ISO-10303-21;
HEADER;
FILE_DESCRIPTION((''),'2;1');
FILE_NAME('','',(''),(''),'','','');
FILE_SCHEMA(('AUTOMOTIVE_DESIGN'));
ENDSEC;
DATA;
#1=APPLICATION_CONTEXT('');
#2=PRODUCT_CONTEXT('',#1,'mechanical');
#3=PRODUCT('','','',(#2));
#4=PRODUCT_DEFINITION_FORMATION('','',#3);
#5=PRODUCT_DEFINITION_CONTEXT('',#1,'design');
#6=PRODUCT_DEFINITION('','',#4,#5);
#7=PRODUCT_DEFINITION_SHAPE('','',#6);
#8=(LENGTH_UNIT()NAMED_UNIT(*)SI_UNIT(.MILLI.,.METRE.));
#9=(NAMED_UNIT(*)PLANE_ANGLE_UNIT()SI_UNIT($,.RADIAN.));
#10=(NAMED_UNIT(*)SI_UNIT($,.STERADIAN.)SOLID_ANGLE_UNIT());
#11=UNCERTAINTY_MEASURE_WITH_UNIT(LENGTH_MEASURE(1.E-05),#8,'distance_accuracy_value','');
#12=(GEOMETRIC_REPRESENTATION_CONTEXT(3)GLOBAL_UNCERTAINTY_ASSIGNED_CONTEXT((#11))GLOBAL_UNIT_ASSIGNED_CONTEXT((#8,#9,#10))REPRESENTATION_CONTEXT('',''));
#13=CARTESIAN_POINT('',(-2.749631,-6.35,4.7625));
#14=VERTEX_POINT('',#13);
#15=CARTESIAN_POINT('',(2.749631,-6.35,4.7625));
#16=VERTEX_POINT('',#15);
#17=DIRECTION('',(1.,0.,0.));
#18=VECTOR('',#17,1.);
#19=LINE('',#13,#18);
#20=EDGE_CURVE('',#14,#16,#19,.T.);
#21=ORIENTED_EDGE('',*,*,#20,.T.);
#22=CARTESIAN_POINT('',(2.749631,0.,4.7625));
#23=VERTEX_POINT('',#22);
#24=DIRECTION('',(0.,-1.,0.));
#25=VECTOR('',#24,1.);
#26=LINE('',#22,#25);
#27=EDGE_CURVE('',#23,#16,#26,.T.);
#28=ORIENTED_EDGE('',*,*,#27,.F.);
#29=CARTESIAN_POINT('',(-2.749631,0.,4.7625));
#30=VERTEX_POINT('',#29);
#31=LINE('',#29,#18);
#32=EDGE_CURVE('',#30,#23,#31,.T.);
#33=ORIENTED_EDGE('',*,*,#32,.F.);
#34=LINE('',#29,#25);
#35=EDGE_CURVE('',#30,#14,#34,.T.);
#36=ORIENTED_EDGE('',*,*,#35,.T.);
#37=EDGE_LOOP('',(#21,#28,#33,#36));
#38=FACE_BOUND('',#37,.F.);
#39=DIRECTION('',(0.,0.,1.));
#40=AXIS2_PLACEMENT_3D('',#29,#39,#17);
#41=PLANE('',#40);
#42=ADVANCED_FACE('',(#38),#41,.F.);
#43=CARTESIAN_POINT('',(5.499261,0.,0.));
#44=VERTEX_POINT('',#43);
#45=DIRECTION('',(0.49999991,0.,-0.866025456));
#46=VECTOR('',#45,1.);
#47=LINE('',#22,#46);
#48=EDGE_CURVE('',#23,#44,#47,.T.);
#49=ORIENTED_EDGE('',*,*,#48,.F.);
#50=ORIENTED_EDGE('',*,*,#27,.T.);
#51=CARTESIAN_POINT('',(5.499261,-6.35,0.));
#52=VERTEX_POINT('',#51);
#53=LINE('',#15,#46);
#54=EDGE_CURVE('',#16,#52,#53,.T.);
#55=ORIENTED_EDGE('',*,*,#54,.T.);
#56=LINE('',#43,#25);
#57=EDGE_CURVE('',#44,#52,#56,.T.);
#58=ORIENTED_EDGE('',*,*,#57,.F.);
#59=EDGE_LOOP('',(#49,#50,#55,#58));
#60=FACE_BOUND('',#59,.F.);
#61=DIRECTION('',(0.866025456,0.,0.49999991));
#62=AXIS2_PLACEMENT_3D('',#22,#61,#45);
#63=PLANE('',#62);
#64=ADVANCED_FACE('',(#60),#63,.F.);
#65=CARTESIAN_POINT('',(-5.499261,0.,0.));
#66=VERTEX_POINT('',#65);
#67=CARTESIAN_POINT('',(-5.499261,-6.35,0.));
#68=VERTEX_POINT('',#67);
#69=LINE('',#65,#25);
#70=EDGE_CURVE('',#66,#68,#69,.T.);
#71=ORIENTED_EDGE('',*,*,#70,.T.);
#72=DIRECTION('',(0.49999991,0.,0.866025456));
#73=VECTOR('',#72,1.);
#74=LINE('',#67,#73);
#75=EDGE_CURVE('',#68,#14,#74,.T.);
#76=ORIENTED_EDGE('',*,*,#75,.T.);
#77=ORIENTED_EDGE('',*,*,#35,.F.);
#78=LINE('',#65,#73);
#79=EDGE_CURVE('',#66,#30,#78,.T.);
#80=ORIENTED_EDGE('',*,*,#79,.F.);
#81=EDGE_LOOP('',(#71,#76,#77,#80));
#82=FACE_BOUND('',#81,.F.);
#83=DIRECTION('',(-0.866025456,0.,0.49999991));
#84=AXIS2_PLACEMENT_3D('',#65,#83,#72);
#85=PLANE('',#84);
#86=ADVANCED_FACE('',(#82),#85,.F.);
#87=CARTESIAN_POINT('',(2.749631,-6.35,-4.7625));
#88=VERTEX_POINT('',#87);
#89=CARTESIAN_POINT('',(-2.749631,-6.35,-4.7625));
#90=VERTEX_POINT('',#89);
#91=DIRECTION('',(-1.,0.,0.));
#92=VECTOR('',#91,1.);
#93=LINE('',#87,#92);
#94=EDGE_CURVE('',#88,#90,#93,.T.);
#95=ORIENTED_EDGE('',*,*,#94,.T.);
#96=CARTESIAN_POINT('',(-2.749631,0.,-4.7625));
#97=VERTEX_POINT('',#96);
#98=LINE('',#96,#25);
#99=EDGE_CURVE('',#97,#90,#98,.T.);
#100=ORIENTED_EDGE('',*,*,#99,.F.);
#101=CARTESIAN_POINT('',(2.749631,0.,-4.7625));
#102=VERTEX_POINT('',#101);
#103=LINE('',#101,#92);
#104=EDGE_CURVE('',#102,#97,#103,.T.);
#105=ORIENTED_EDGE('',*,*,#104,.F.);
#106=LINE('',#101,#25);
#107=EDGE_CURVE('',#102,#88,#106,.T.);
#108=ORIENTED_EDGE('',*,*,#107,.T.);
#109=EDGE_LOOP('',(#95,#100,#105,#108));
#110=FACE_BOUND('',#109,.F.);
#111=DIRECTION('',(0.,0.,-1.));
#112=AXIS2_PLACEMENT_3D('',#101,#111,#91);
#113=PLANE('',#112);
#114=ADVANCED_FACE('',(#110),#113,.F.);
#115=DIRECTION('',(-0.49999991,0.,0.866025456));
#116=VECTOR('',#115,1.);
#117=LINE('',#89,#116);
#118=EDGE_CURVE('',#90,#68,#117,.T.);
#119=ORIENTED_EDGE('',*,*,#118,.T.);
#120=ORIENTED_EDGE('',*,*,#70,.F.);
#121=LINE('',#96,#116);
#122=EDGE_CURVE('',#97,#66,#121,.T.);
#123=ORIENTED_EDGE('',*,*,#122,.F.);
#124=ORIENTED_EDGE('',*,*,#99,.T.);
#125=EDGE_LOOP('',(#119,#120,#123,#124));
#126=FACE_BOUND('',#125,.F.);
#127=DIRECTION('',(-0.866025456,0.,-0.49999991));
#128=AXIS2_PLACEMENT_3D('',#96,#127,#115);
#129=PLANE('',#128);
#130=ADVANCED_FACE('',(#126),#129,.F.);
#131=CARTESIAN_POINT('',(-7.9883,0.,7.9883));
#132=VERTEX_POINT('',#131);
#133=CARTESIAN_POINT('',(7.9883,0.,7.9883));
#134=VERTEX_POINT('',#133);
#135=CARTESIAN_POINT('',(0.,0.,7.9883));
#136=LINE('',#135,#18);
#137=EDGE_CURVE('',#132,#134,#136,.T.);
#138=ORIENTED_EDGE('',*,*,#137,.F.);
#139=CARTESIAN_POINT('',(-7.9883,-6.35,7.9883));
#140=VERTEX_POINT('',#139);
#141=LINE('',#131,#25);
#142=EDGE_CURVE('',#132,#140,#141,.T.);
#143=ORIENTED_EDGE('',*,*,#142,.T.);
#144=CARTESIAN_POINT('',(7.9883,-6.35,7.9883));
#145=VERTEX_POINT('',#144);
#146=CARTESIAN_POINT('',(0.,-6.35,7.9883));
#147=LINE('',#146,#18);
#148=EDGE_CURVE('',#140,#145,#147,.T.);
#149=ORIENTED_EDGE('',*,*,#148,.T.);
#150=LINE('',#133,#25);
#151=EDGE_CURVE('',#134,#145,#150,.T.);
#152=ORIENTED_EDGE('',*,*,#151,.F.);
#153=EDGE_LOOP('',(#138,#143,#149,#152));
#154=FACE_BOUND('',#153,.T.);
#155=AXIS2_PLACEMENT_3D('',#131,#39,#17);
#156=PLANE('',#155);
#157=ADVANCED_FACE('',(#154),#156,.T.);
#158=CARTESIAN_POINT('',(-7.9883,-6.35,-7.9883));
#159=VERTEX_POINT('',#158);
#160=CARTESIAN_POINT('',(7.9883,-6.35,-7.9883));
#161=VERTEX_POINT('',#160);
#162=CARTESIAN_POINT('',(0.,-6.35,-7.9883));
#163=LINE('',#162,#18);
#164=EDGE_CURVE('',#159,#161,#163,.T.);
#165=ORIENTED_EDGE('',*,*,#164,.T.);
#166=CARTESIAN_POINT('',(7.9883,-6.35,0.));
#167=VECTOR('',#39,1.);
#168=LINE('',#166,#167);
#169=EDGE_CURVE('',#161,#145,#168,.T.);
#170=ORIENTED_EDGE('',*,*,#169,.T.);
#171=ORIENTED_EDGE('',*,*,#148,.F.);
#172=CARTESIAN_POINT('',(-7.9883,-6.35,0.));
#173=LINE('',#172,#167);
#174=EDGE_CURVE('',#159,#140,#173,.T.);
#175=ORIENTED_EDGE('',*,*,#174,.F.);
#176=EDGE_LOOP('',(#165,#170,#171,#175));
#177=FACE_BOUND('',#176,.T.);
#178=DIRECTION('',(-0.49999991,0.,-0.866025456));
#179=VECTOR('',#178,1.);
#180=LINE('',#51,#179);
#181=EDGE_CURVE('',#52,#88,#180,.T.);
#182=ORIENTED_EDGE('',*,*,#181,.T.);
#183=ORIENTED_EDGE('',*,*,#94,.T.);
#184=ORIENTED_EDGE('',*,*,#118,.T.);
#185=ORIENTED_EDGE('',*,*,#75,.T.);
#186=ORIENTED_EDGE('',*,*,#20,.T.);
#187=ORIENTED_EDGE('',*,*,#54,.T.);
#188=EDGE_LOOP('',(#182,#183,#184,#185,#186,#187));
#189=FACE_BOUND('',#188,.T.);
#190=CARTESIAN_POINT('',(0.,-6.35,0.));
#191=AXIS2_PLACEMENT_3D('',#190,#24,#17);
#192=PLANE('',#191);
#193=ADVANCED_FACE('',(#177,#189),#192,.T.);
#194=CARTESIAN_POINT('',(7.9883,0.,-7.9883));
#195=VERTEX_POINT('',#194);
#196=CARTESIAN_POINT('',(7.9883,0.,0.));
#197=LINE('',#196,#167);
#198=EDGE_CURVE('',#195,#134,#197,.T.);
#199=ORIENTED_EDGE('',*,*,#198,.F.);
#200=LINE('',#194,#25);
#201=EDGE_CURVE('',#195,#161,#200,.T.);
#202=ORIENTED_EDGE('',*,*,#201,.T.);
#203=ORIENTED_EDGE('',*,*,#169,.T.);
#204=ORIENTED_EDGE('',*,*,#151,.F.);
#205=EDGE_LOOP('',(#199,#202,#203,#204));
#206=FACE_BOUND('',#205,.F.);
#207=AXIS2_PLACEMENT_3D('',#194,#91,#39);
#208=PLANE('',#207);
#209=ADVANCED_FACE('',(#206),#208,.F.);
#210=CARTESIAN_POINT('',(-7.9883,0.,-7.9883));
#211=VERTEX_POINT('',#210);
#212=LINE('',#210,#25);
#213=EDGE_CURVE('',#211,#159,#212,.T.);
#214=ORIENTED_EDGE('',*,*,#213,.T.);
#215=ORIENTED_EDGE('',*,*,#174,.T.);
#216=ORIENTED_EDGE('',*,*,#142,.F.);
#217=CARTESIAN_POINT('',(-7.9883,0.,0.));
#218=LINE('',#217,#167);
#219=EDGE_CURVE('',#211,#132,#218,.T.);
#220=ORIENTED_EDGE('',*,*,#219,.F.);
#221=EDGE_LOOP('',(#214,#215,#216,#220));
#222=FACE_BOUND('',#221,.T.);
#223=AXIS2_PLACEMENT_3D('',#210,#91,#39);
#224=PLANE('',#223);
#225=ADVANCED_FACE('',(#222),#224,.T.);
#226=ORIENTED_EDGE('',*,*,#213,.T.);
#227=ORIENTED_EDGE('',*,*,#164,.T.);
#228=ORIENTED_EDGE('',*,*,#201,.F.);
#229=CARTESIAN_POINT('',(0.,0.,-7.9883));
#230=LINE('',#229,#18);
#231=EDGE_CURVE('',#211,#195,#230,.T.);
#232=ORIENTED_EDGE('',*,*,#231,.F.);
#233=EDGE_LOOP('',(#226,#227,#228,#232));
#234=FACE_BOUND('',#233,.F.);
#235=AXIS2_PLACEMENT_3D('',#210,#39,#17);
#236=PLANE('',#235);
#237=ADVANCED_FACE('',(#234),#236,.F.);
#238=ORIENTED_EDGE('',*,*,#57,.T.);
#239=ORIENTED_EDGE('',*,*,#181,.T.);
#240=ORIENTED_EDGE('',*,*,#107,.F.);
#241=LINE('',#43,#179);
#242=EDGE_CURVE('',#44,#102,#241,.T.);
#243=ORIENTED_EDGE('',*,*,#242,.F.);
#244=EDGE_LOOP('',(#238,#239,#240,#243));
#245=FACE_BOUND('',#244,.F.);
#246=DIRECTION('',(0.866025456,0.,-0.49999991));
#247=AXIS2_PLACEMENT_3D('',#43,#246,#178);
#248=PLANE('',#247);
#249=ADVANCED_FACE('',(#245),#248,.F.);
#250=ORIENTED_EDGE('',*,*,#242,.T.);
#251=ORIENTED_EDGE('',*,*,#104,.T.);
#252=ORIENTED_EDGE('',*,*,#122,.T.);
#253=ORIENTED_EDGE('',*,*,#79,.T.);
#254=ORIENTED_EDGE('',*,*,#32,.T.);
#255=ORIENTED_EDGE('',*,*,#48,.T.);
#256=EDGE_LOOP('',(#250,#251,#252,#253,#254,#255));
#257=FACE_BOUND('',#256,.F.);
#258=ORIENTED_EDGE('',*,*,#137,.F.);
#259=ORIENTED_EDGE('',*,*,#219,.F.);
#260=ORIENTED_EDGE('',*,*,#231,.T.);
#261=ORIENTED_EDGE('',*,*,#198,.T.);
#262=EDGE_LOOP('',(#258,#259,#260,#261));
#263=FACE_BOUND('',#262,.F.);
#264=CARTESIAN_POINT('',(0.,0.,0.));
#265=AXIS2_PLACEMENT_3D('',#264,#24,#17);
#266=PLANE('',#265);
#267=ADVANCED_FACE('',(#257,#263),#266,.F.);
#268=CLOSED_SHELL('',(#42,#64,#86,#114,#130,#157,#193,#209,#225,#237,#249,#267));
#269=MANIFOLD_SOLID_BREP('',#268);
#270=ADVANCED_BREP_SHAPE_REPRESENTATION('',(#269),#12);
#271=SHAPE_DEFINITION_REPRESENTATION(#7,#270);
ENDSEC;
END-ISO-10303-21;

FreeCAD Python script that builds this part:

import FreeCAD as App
import Part
import Sketcher

V = App.Vector
Q = App.Units.Quantity


def add_polygon(sketch, points):
    """Adds a closed chain of lines whose ends are joined by coincident constraints."""
    first, n = sketch.GeometryCount, len(points)
    for a, b in zip(points, points[1:] + points[:1]):
        sketch.addGeometry(Part.LineSegment(App.Vector(*a, 0), App.Vector(*b, 0)), False)
    for i in range(n):
        sketch.addConstraint(Sketcher.Constraint("Coincident", first + i, 2, first + (i + 1) % n, 1))

doc = App.newDocument("Part")
params = doc.addObject("Spreadsheet::Sheet", "Params")
for row, (alias, value) in enumerate([
    ("sketch1_width", "0.629 in"),
    ("pad1_length", "0.25 in"),
], start=1):
    params.set(f"A{row}", alias)
    params.set(f"B{row}", "=" + value)
    params.setAlias(f"B{row}", alias)

body = doc.addObject("PartDesign::Body", "Body")

# Sketch on XZ plane
sketch1 = body.newObject("Sketcher::SketchObject", "Sketch")
sketch1.AttachmentSupport = (doc.getObject("XZ_Plane"), [""])
sketch1.MapMode = "FlatFace"
add_polygon(sketch1, [(-8, 8), (-8, -8), (8, -8), (8, 8)])  # lines 0-3
add_polygon(sketch1, [(3, -5), (-3, -5), (-5, 0), (-3, 5), (3, 5), (5, 0)])  # lines 4-9
sketch1.addConstraint([
    Sketcher.Constraint("Vertical", 0),
    Sketcher.Constraint("Horizontal", 1),
    Sketcher.Constraint("Vertical", 2),
    Sketcher.Constraint("Horizontal", 3),
    Sketcher.Constraint("Horizontal", 4),
    Sketcher.Constraint("Horizontal", 7),
    Sketcher.Constraint("Symmetric", 0, 2, 2, 2, -1, 1),
    Sketcher.Constraint("Symmetric", 4, 2, 7, 2, -1, 1),
    Sketcher.Constraint("Symmetric", 5, 2, 8, 2, -1, 1),
    Sketcher.Constraint("PointOnObject", 5, 2, -1),
    Sketcher.Constraint("Parallel", 6, 9),
    Sketcher.Constraint("Vertical", 4, 2, 6, 2),
    Sketcher.Constraint("Equal", 3, 0),
    Sketcher.Constraint("Angle", 5, Q("119.999994 deg")),
    Sketcher.Constraint("DistanceX", 1, 1, 1, 2, Q("0.629 in")),
    Sketcher.Constraint("DistanceY", 4, 2, -1, 1, Q("0.1875 in")),
    Sketcher.Constraint("DistanceX", 4, 2, 4, 1, Q("5.499262 mm")),
])
sketch1.setExpression("Constraints[24]", "Params.sketch1_width")
pad1 = body.newObject("PartDesign::Pad", "Pad")
pad1.Profile = sketch1
pad1.setExpression("Length", "Params.pad1_length")

doc.recompute()
